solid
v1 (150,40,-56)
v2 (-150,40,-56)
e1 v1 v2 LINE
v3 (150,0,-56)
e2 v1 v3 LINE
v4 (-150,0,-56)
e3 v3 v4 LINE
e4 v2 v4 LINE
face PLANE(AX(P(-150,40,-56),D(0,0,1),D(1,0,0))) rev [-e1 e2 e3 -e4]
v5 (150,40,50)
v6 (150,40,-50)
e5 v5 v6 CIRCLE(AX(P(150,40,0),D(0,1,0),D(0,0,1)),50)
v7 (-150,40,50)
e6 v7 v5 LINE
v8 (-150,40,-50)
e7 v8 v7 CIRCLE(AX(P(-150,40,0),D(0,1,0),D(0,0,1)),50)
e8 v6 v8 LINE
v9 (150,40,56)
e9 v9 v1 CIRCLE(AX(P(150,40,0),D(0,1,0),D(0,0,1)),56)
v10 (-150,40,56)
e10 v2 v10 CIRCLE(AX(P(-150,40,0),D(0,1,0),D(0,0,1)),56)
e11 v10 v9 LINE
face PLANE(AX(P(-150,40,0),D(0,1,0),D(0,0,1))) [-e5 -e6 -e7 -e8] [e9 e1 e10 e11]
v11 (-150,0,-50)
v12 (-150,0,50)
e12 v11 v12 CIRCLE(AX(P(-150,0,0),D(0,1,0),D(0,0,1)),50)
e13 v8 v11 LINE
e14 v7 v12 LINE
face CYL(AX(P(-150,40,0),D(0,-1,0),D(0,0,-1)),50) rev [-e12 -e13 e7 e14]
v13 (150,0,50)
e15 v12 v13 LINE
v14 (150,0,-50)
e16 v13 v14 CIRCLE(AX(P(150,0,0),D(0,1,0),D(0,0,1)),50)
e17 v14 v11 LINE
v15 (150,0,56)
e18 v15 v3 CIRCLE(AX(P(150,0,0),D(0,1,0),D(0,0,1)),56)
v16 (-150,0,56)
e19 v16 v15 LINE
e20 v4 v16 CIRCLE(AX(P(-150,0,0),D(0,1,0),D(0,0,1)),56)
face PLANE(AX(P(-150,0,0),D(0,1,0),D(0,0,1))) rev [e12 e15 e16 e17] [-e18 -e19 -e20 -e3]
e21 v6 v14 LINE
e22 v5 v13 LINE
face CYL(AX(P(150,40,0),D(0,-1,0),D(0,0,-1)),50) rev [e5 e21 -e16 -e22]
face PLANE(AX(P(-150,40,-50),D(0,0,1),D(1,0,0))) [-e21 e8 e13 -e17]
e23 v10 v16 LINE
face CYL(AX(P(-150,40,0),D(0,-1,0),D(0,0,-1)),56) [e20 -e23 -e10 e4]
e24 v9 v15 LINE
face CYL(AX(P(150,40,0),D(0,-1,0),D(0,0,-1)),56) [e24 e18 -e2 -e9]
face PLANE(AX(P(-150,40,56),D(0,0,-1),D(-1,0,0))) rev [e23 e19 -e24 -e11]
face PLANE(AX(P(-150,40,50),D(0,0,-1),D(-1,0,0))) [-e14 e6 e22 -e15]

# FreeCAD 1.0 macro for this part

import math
import FreeCAD as App
import Part
import Sketcher

V = App.Vector

doc = App.newDocument("Part")
body = doc.addObject("PartDesign::Body", "Body")

# Sketch on XZ plane
sketch1 = doc.addObject("Sketcher::SketchObject", "Sketch")
body.addObject(sketch1)
sketch1.AttachmentSupport = (doc.XZ_Plane, [""])
sketch1.MapMode = "FlatFace"
sketch1.addGeometry([
    Part.LineSegment(V(150, -56, 0), V(-150, -56, 0)),  # 0
    Part.ArcOfCircle(Part.Circle(V(-150, 0, 0), V(0, 0, 1), 56), math.radians(90), math.radians(270)),  # 1
    Part.LineSegment(V(-150, 56, 0), V(150, 56, 0)),  # 2
    Part.ArcOfCircle(Part.Circle(V(150, 0, 0), V(0, 0, 1), 56), math.radians(-90), math.radians(90)),  # 3
    Part.LineSegment(V(-150, -50, 0), V(150, -50, 0)),  # 4
    Part.ArcOfCircle(Part.Circle(V(150, 0, 0), V(0, 0, 1), 50), math.radians(-90), math.radians(90)),  # 5
    Part.LineSegment(V(150, 50, 0), V(-150, 50, 0)),  # 6
    Part.ArcOfCircle(Part.Circle(V(-150, 0, 0), V(0, 0, 1), 50), math.radians(90), math.radians(270)),  # 7
], False)
sketch1.addConstraint([
    Sketcher.Constraint("Tangent", 0, 2, 1, 2),
    Sketcher.Constraint("Tangent", 1, 1, 2, 1),
    Sketcher.Constraint("Tangent", 2, 2, 3, 2),
    Sketcher.Constraint("Tangent", 3, 1, 0, 1),
    Sketcher.Constraint("Tangent", 4, 2, 5, 1),
    Sketcher.Constraint("Tangent", 5, 2, 6, 1),
    Sketcher.Constraint("Tangent", 6, 2, 7, 1),
    Sketcher.Constraint("Tangent", 7, 2, 4, 1),
    Sketcher.Constraint("Horizontal", 0),
    Sketcher.Constraint("Horizontal", 2),
    Sketcher.Constraint("Horizontal", 4),
    Sketcher.Constraint("Horizontal", 6),
    Sketcher.Constraint("Coincident", 5, 3, 3, 3),
    Sketcher.Constraint("Symmetric", 1, 3, 3, 3, -1, 1),
    Sketcher.Constraint("Vertical", 7, 3, 0, 2),
    Sketcher.Constraint("Radius", 1, 56.0),
    Sketcher.Constraint("Radius", 5, 50.0),
    Sketcher.Constraint("DistanceX", 0, 2, 0, 1, 300.0),
])
pad1 = doc.addObject("PartDesign::Pad", "Pad")
body.addObject(pad1)
pad1.Profile = sketch1
pad1.Length = 40
pad1.Reversed = True

doc.recompute()
